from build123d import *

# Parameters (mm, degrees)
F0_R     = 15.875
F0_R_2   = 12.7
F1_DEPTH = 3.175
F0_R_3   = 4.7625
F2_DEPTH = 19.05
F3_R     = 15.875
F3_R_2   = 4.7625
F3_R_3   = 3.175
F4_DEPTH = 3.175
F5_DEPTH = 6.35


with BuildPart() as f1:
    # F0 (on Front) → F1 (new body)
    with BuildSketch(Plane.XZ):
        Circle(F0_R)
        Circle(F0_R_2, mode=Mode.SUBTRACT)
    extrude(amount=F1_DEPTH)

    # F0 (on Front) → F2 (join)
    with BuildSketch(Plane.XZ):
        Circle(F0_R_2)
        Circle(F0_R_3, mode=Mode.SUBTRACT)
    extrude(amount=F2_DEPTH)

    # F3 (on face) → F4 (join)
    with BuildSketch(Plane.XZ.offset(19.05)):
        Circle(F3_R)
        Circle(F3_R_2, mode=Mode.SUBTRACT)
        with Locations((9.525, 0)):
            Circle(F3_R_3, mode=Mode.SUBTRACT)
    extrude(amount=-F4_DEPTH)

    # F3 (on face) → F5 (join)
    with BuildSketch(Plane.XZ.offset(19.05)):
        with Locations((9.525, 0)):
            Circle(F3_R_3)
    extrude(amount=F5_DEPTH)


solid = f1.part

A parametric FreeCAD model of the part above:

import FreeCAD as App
import Part
import Sketcher
Q = App.Units.Quantity

doc = App.newDocument("Part")
body = doc.addObject("PartDesign::Body", "Body")

sketch1 = doc.addObject("Sketcher::SketchObject", "Sketch")
body.addObject(sketch1)
sketch1.AttachmentSupport = (doc.XZ_Plane, [""])
sketch1.MapMode = "FlatFace"
sketch1.addGeometry([
    Part.Circle(App.Vector(0, 0, 0), App.Vector(0, 0, 1), 15.875),
    Part.Circle(App.Vector(0, 0, 0), App.Vector(0, 0, 1), 12.7),
], False)
sketch1.addConstraint([
    Sketcher.Constraint("Coincident", 0, 3, -1, 1),
    Sketcher.Constraint("Coincident", 1, 3, -1, 1),
    Sketcher.Constraint("Diameter", 1, Q("1 in")),
    Sketcher.Constraint("Diameter", 0, Q("1.25 in")),
])
pad1 = doc.addObject("PartDesign::Pad", "Pad")
body.addObject(pad1)
pad1.Profile = sketch1
pad1.Length = Q("0.125 in")

sketch2 = doc.addObject("Sketcher::SketchObject", "Sketch001")
body.addObject(sketch2)
sketch2.AttachmentSupport = (doc.XZ_Plane, [""])
sketch2.MapMode = "FlatFace"
sketch2.addGeometry([
    Part.Circle(App.Vector(0, 0, 0), App.Vector(0, 0, 1), 12.7),
    Part.Circle(App.Vector(0, 0, 0), App.Vector(0, 0, 1), 4.7625),
], False)
sketch2.addConstraint([
    Sketcher.Constraint("Coincident", 0, 3, -1, 1),
    Sketcher.Constraint("Coincident", 1, 3, -1, 1),
    Sketcher.Constraint("Diameter", 0, Q("1 in")),
    Sketcher.Constraint("Diameter", 1, Q("0.375 in")),
])
pad2 = doc.addObject("PartDesign::Pad", "Pad001")
body.addObject(pad2)
pad2.Profile = sketch2
pad2.Length = Q("0.75 in")

sketch3 = doc.addObject("Sketcher::SketchObject", "Sketch002")
body.addObject(sketch3)
sketch3.AttachmentSupport = (doc.XZ_Plane, [""])
sketch3.MapMode = "FlatFace"
sketch3.AttachmentOffset = App.Placement(App.Vector(0, 0, 0.75 * 25.4), App.Rotation())
sketch3.addGeometry([
    Part.Circle(App.Vector(0, 0, 0), App.Vector(0, 0, 1), 15.875),
    Part.Circle(App.Vector(0, 0, 0), App.Vector(0, 0, 1), 4.7625),
    Part.Circle(App.Vector(9.525, 0, 0), App.Vector(0, 0, 1), 3.175),
], False)
sketch3.addConstraint([
    Sketcher.Constraint("Coincident", 0, 3, -1, 1),
    Sketcher.Constraint("Coincident", 1, 3, -1, 1),
    Sketcher.Constraint("PointOnObject", 2, 3, -1),
    Sketcher.Constraint("Diameter", 0, Q("1.25 in")),
    Sketcher.Constraint("Diameter", 2, Q("0.25 in")),
    Sketcher.Constraint("Diameter", 1, Q("0.375 in")),
    Sketcher.Constraint("DistanceX", -1, 1, 2, 3, Q("0.375 in")),
])
pad3 = doc.addObject("PartDesign::Pad", "Pad002")
body.addObject(pad3)
pad3.Profile = sketch3
pad3.Length = Q("0.125 in")
pad3.Reversed = True

sketch4 = doc.addObject("Sketcher::SketchObject", "Sketch003")
body.addObject(sketch4)
sketch4.AttachmentSupport = (doc.XZ_Plane, [""])
sketch4.MapMode = "FlatFace"
sketch4.AttachmentOffset = App.Placement(App.Vector(0, 0, 0.75 * 25.4), App.Rotation())
sketch4.addGeometry(Part.Circle(App.Vector(9.525, 0, 0), App.Vector(0, 0, 1), 3.175), False)
sketch4.addConstraint([
    Sketcher.Constraint("PointOnObject", 0, 3, -1),
    Sketcher.Constraint("Diameter", 0, Q("0.25 in")),
    Sketcher.Constraint("DistanceX", -1, 1, 0, 3, Q("0.375 in")),
])
pad4 = doc.addObject("PartDesign::Pad", "Pad003")
body.addObject(pad4)
pad4.Profile = sketch4
pad4.Length = Q("0.25 in")

doc.recompute()
